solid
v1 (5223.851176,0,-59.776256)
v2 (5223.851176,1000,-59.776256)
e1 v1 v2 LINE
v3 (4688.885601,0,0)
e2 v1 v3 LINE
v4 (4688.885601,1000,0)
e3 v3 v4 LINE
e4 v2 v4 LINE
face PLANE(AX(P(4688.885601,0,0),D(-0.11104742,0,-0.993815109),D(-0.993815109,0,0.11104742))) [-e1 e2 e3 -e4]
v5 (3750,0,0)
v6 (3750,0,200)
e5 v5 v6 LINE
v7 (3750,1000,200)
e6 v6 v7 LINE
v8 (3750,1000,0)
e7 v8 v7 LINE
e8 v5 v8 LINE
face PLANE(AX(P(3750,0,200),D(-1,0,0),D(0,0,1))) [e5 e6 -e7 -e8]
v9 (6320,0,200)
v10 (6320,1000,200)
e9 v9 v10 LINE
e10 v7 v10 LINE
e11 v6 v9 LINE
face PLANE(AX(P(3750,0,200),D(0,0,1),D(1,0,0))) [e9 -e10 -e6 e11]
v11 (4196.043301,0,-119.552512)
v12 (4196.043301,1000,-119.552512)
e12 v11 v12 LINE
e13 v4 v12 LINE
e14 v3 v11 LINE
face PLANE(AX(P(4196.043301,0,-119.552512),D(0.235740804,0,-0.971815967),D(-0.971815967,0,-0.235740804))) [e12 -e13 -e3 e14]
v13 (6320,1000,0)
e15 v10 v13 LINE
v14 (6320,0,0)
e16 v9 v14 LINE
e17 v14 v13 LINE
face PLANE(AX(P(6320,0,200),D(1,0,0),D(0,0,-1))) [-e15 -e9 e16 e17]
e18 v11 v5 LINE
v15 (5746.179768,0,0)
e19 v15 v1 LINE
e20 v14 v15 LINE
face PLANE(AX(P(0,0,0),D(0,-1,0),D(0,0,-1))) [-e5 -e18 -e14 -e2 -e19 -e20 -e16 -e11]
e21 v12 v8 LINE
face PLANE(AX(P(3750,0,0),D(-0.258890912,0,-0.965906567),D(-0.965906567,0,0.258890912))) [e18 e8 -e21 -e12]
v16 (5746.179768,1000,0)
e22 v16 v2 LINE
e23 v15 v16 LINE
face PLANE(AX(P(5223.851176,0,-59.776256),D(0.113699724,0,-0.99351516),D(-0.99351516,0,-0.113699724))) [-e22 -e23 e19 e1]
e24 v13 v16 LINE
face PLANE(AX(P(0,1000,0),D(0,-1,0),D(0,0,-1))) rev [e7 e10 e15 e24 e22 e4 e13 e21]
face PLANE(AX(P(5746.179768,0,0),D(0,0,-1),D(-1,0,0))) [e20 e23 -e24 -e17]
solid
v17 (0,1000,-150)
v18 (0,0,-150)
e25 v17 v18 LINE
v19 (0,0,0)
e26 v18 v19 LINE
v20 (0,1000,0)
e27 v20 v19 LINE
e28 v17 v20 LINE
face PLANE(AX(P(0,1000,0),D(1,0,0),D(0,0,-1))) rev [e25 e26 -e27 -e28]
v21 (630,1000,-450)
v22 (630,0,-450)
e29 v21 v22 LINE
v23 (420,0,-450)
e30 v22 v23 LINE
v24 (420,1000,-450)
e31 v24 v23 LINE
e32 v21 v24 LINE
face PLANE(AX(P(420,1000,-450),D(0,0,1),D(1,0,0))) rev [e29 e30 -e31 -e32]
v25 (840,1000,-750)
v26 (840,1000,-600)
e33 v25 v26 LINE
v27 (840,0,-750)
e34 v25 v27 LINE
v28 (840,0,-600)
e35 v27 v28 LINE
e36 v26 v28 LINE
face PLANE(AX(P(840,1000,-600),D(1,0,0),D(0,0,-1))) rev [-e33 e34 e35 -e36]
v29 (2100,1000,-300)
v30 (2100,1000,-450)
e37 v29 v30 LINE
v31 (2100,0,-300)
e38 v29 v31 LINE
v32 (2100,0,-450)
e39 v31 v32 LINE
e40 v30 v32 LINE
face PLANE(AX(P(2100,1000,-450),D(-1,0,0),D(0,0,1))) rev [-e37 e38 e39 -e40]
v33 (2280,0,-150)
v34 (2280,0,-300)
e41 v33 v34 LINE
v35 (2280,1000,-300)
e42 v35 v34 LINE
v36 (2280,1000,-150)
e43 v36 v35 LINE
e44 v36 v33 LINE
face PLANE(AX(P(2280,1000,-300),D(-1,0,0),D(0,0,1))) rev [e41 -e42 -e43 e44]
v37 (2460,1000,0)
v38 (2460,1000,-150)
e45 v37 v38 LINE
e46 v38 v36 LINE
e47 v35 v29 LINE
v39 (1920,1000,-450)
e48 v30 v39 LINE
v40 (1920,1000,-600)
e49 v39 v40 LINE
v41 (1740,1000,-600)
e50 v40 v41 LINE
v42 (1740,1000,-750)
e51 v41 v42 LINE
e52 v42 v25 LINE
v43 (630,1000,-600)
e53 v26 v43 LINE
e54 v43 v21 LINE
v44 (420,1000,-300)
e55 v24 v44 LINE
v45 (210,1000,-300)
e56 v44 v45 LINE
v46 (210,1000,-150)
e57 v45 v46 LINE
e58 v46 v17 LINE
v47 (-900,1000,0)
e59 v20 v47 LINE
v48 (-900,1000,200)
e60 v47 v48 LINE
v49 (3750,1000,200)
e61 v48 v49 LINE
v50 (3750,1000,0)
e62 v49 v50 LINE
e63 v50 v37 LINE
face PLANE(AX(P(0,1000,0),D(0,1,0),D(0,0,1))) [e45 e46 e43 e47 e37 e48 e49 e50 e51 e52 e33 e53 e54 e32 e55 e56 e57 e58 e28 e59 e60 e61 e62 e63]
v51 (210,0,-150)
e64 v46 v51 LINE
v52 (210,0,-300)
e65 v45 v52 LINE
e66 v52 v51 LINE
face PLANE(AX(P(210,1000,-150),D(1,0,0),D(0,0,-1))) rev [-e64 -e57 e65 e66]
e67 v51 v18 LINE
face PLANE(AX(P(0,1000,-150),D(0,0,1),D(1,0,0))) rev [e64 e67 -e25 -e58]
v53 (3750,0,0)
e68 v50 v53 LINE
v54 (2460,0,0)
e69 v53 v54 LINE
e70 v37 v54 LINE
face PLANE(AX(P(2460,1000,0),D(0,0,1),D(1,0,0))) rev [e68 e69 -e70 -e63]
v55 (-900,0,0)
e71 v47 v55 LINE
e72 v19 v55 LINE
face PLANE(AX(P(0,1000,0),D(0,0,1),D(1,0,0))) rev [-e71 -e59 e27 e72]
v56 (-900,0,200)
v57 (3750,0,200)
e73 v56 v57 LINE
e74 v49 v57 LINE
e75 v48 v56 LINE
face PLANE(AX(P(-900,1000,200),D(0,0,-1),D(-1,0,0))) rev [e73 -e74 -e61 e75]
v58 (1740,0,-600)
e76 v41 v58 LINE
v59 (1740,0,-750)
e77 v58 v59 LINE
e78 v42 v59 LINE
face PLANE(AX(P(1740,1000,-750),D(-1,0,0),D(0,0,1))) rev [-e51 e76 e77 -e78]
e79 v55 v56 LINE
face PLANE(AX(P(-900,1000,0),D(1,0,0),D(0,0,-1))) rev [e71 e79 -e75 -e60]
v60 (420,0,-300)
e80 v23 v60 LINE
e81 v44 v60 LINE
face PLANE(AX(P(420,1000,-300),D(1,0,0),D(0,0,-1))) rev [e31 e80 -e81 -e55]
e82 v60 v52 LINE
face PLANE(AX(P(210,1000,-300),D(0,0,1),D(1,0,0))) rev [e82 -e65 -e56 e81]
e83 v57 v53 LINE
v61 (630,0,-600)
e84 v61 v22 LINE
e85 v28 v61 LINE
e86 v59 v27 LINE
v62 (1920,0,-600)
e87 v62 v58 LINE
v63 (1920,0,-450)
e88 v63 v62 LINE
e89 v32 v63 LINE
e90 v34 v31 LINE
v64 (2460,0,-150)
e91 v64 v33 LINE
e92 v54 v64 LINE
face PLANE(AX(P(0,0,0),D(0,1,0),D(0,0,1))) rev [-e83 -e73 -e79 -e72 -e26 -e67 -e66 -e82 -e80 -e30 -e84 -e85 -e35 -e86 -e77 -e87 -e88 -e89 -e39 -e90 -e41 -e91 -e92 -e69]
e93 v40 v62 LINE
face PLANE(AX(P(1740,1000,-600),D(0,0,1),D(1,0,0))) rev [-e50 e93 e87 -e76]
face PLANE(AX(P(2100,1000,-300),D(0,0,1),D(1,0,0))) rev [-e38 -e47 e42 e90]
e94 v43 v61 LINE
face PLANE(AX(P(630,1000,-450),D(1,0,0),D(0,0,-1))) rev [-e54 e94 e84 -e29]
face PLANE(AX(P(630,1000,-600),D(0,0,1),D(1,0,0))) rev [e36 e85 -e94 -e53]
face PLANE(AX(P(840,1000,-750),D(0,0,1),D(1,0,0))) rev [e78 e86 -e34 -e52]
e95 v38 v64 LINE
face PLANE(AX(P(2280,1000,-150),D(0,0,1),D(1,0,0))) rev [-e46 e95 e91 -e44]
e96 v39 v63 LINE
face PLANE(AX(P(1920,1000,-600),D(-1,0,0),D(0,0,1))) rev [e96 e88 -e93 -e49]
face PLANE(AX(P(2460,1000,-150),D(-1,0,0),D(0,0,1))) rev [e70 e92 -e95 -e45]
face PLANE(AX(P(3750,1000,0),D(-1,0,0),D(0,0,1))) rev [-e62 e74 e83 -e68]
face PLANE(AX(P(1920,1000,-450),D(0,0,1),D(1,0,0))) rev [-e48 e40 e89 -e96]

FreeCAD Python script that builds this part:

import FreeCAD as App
import Part
import Sketcher
from FreeCAD import Vector

doc = App.newDocument("Part")
body = doc.addObject("PartDesign::Body", "Body")

# Sketch on XZ plane
sketch1 = doc.addObject("Sketcher::SketchObject", "Sketch")
body.addObject(sketch1)
sketch1.AttachmentSupport = (doc.XZ_Plane, [""])
sketch1.MapMode = "FlatFace"
sketch1.addGeometry(Part.LineSegment(Vector(0, -150, 0), Vector(0, 0, 0)), False)
sketch1.addGeometry(Part.LineSegment(Vector(0, 0, 0), Vector(-900, 0, 0)), False)
sketch1.addGeometry(Part.LineSegment(Vector(-900, 0, 0), Vector(-900, 200, 0)), False)
sketch1.addGeometry(Part.LineSegment(Vector(-900, 200, 0), Vector(3750, 200, 0)), False)
sketch1.addGeometry(Part.LineSegment(Vector(3750, 200, 0), Vector(3750, 0, 0)), False)
sketch1.addGeometry(Part.LineSegment(Vector(3750, 0, 0), Vector(2460, 0, 0)), False)
sketch1.addGeometry(Part.LineSegment(Vector(2460, 0, 0), Vector(2460, -150, 0)), False)
sketch1.addGeometry(Part.LineSegment(Vector(2460, -150, 0), Vector(2280, -150, 0)), False)
sketch1.addGeometry(Part.LineSegment(Vector(2280, -150, 0), Vector(2280, -300, 0)), False)
sketch1.addGeometry(Part.LineSegment(Vector(2280, -300, 0), Vector(2100, -300, 0)), False)
sketch1.addGeometry(Part.LineSegment(Vector(2100, -300, 0), Vector(2100, -450, 0)), False)
sketch1.addGeometry(Part.LineSegment(Vector(2100, -450, 0), Vector(1920, -450, 0)), False)
sketch1.addGeometry(Part.LineSegment(Vector(1920, -450, 0), Vector(1920, -600, 0)), False)
sketch1.addGeometry(Part.LineSegment(Vector(1920, -600, 0), Vector(1740, -600, 0)), False)
sketch1.addGeometry(Part.LineSegment(Vector(1740, -600, 0), Vector(1740, -750, 0)), False)
sketch1.addGeometry(Part.LineSegment(Vector(1740, -750, 0), Vector(840, -750, 0)), False)
sketch1.addGeometry(Part.LineSegment(Vector(840, -750, 0), Vector(840, -600, 0)), False)
sketch1.addGeometry(Part.LineSegment(Vector(840, -600, 0), Vector(630, -600, 0)), False)
sketch1.addGeometry(Part.LineSegment(Vector(630, -600, 0), Vector(630, -450, 0)), False)
sketch1.addGeometry(Part.LineSegment(Vector(630, -450, 0), Vector(420, -450, 0)), False)
sketch1.addGeometry(Part.LineSegment(Vector(420, -450, 0), Vector(420, -300, 0)), False)
sketch1.addGeometry(Part.LineSegment(Vector(420, -300, 0), Vector(210, -300, 0)), False)
sketch1.addGeometry(Part.LineSegment(Vector(210, -300, 0), Vector(210, -150, 0)), False)
sketch1.addGeometry(Part.LineSegment(Vector(210, -150, 0), Vector(0, -150, 0)), False)
sketch1.addConstraint(Sketcher.Constraint("Coincident", 0, 2, 1, 1))
sketch1.addConstraint(Sketcher.Constraint("Coincident", 1, 2, 2, 1))
sketch1.addConstraint(Sketcher.Constraint("Coincident", 2, 2, 3, 1))
sketch1.addConstraint(Sketcher.Constraint("Coincident", 3, 2, 4, 1))
sketch1.addConstraint(Sketcher.Constraint("Coincident", 4, 2, 5, 1))
sketch1.addConstraint(Sketcher.Constraint("Coincident", 5, 2, 6, 1))
sketch1.addConstraint(Sketcher.Constraint("Coincident", 6, 2, 7, 1))
sketch1.addConstraint(Sketcher.Constraint("Coincident", 7, 2, 8, 1))
sketch1.addConstraint(Sketcher.Constraint("Coincident", 8, 2, 9, 1))
sketch1.addConstraint(Sketcher.Constraint("Coincident", 9, 2, 10, 1))
sketch1.addConstraint(Sketcher.Constraint("Coincident", 10, 2, 11, 1))
sketch1.addConstraint(Sketcher.Constraint("Coincident", 11, 2, 12, 1))
sketch1.addConstraint(Sketcher.Constraint("Coincident", 12, 2, 13, 1))
sketch1.addConstraint(Sketcher.Constraint("Coincident", 13, 2, 14, 1))
sketch1.addConstraint(Sketcher.Constraint("Coincident", 14, 2, 15, 1))
sketch1.addConstraint(Sketcher.Constraint("Coincident", 15, 2, 16, 1))
sketch1.addConstraint(Sketcher.Constraint("Coincident", 16, 2, 17, 1))
sketch1.addConstraint(Sketcher.Constraint("Coincident", 17, 2, 18, 1))
sketch1.addConstraint(Sketcher.Constraint("Coincident", 18, 2, 19, 1))
sketch1.addConstraint(Sketcher.Constraint("Coincident", 19, 2, 20, 1))
sketch1.addConstraint(Sketcher.Constraint("Coincident", 20, 2, 21, 1))
sketch1.addConstraint(Sketcher.Constraint("Coincident", 21, 2, 22, 1))
sketch1.addConstraint(Sketcher.Constraint("Coincident", 22, 2, 23, 1))
sketch1.addConstraint(Sketcher.Constraint("Coincident", 23, 2, 0, 1))
sketch1.addConstraint(Sketcher.Constraint("Vertical", 0))
sketch1.addConstraint(Sketcher.Constraint("Horizontal", 1))
sketch1.addConstraint(Sketcher.Constraint("Vertical", 2))
sketch1.addConstraint(Sketcher.Constraint("Horizontal", 3))
sketch1.addConstraint(Sketcher.Constraint("Vertical", 4))
sketch1.addConstraint(Sketcher.Constraint("Horizontal", 5))
sketch1.addConstraint(Sketcher.Constraint("Vertical", 6))
sketch1.addConstraint(Sketcher.Constraint("Horizontal", 7))
sketch1.addConstraint(Sketcher.Constraint("Vertical", 8))
sketch1.addConstraint(Sketcher.Constraint("Horizontal", 9))
sketch1.addConstraint(Sketcher.Constraint("Vertical", 10))
sketch1.addConstraint(Sketcher.Constraint("Horizontal", 11))
sketch1.addConstraint(Sketcher.Constraint("Vertical", 12))
sketch1.addConstraint(Sketcher.Constraint("Horizontal", 13))
sketch1.addConstraint(Sketcher.Constraint("Vertical", 14))
sketch1.addConstraint(Sketcher.Constraint("Horizontal", 15))
sketch1.addConstraint(Sketcher.Constraint("Vertical", 16))
sketch1.addConstraint(Sketcher.Constraint("Horizontal", 17))
sketch1.addConstraint(Sketcher.Constraint("Vertical", 18))
sketch1.addConstraint(Sketcher.Constraint("Horizontal", 19))
sketch1.addConstraint(Sketcher.Constraint("Vertical", 20))
sketch1.addConstraint(Sketcher.Constraint("Horizontal", 21))
sketch1.addConstraint(Sketcher.Constraint("Vertical", 22))
sketch1.addConstraint(Sketcher.Constraint("Horizontal", 23))
sketch1.addConstraint(Sketcher.Constraint("Coincident", 0, 2, -1, 1))
sketch1.addConstraint(Sketcher.Constraint("PointOnObject", 4, 2, -1))
sketch1.addConstraint(Sketcher.Constraint("Horizontal", 13, 2, 16, 2))
sketch1.addConstraint(Sketcher.Constraint("Horizontal", 11, 2, 18, 2))
sketch1.addConstraint(Sketcher.Constraint("Horizontal", 9, 2, 20, 2))
sketch1.addConstraint(Sketcher.Constraint("Horizontal", 7, 2, 22, 2))
sketch1.addConstraint(Sketcher.Constraint("Equal", 7, 9))
sketch1.addConstraint(Sketcher.Constraint("Equal", 9, 11))
sketch1.addConstraint(Sketcher.Constraint("Equal", 11, 13))
sketch1.addConstraint(Sketcher.Constraint("Equal", 1, 15))
sketch1.addConstraint(Sketcher.Constraint("Equal", 17, 19))
sketch1.addConstraint(Sketcher.Constraint("Equal", 19, 21))
sketch1.addConstraint(Sketcher.Constraint("Equal", 21, 23))
sketch1.addConstraint(Sketcher.Constraint("Equal", 6, 8))
sketch1.addConstraint(Sketcher.Constraint("Equal", 8, 10))
sketch1.addConstraint(Sketcher.Constraint("Equal", 10, 12))
sketch1.addConstraint(Sketcher.Constraint("Equal", 12, 14))
sketch1.addConstraint(Sketcher.Constraint("DistanceX", 1, 2, 1, 1, 900.0))
sketch1.addConstraint(Sketcher.Constraint("DistanceX", 3, 1, 3, 2, 4650.0))
sketch1.addConstraint(Sketcher.Constraint("DistanceX", 5, 2, 5, 1, 1290.0))
sketch1.addConstraint(Sketcher.Constraint("DistanceX", 7, 2, 7, 1, 180.0))
sketch1.addConstraint(Sketcher.Constraint("DistanceY", 0, 1, 0, 2, 150.0))
sketch1.addConstraint(Sketcher.Constraint("DistanceY", 2, 1, 2, 2, 200.0))
pad1 = doc.addObject("PartDesign::Pad", "Pad")
body.addObject(pad1)
pad1.Profile = sketch1
pad1.Length = 1000
pad1.Reversed = True
body2 = doc.addObject("PartDesign::Body", "Body001")

# Sketch on XZ plane
sketch2 = doc.addObject("Sketcher::SketchObject", "Sketch001")
body2.addObject(sketch2)
sketch2.AttachmentSupport = (doc.getObject("XZ_Plane001"), [""])
sketch2.MapMode = "FlatFace"
sketch2.AttachmentOffset = App.Placement(Vector(0, 0, -1000), App.Rotation())
sketch2.addGeometry(Part.LineSegment(Vector(3750, 200, 0), Vector(6320, 200, 0)), False)
sketch2.addGeometry(Part.LineSegment(Vector(6320, 200, 0), Vector(6320, 0, 0)), False)
sketch2.addGeometry(Part.LineSegment(Vector(6320, 0, 0), Vector(5746, 0, 0)), False)
sketch2.addGeometry(Part.LineSegment(Vector(5746, 0, 0), Vector(5224, -60, 0)), False)
sketch2.addGeometry(Part.LineSegment(Vector(5224, -60, 0), Vector(4689, 0, 0)), False)
sketch2.addGeometry(Part.LineSegment(Vector(4689, 0, 0), Vector(4196, -120, 0)), False)
sketch2.addGeometry(Part.LineSegment(Vector(4196, -120, 0), Vector(3750, 0, 0)), False)
sketch2.addGeometry(Part.LineSegment(Vector(3750, 0, 0), Vector(3750, 200, 0)), False)
sketch2.addConstraint(Sketcher.Constraint("Coincident", 0, 2, 1, 1))
sketch2.addConstraint(Sketcher.Constraint("Coincident", 1, 2, 2, 1))
sketch2.addConstraint(Sketcher.Constraint("Coincident", 2, 2, 3, 1))
sketch2.addConstraint(Sketcher.Constraint("Coincident", 3, 2, 4, 1))
sketch2.addConstraint(Sketcher.Constraint("Coincident", 4, 2, 5, 1))
sketch2.addConstraint(Sketcher.Constraint("Coincident", 5, 2, 6, 1))
sketch2.addConstraint(Sketcher.Constraint("Coincident", 6, 2, 7, 1))
sketch2.addConstraint(Sketcher.Constraint("Coincident", 7, 2, 0, 1))
sketch2.addConstraint(Sketcher.Constraint("Horizontal", 0))
sketch2.addConstraint(Sketcher.Constraint("Vertical", 1))
sketch2.addConstraint(Sketcher.Constraint("Horizontal", 2))
sketch2.addConstraint(Sketcher.Constraint("Vertical", 7))
sketch2.addConstraint(Sketcher.Constraint("PointOnObject", 1, 2, -1))
sketch2.addConstraint(Sketcher.Constraint("PointOnObject", 4, 2, -1))
sketch2.addConstraint(Sketcher.Constraint("PointOnObject", 6, 2, -1))
sketch2.addConstraint(Sketcher.Constraint("DistanceX", 0, 1, 0, 2, 2570.0))
sketch2.addConstraint(Sketcher.Constraint("DistanceY", 1, 2, 1, 1, 200.0))
sketch2.addConstraint(Sketcher.Constraint("DistanceX", -1, 1, 0, 2, 6320.0))
sketch2.addConstraint(Sketcher.Constraint("DistanceX", -1, 1, 4, 2, 4688.885601))
sketch2.addConstraint(Sketcher.Constraint("DistanceX", -1, 1, 5, 2, 4196.043301))
sketch2.addConstraint(Sketcher.Constraint("Distance", 3, 525.737919))
sketch2.addConstraint(Sketcher.Constraint("Distance", 4, 538.294869))
sketch2.addConstraint(Sketcher.Constraint("DistanceX", 2, 2, 2, 1, 573.820232))
sketch2.addConstraint(Sketcher.Constraint("Distance", 5, 507.135422))
pad2 = doc.addObject("PartDesign::Pad", "Pad001")
body2.addObject(pad2)
pad2.Profile = sketch2
pad2.Length = 1000

doc.recompute()
